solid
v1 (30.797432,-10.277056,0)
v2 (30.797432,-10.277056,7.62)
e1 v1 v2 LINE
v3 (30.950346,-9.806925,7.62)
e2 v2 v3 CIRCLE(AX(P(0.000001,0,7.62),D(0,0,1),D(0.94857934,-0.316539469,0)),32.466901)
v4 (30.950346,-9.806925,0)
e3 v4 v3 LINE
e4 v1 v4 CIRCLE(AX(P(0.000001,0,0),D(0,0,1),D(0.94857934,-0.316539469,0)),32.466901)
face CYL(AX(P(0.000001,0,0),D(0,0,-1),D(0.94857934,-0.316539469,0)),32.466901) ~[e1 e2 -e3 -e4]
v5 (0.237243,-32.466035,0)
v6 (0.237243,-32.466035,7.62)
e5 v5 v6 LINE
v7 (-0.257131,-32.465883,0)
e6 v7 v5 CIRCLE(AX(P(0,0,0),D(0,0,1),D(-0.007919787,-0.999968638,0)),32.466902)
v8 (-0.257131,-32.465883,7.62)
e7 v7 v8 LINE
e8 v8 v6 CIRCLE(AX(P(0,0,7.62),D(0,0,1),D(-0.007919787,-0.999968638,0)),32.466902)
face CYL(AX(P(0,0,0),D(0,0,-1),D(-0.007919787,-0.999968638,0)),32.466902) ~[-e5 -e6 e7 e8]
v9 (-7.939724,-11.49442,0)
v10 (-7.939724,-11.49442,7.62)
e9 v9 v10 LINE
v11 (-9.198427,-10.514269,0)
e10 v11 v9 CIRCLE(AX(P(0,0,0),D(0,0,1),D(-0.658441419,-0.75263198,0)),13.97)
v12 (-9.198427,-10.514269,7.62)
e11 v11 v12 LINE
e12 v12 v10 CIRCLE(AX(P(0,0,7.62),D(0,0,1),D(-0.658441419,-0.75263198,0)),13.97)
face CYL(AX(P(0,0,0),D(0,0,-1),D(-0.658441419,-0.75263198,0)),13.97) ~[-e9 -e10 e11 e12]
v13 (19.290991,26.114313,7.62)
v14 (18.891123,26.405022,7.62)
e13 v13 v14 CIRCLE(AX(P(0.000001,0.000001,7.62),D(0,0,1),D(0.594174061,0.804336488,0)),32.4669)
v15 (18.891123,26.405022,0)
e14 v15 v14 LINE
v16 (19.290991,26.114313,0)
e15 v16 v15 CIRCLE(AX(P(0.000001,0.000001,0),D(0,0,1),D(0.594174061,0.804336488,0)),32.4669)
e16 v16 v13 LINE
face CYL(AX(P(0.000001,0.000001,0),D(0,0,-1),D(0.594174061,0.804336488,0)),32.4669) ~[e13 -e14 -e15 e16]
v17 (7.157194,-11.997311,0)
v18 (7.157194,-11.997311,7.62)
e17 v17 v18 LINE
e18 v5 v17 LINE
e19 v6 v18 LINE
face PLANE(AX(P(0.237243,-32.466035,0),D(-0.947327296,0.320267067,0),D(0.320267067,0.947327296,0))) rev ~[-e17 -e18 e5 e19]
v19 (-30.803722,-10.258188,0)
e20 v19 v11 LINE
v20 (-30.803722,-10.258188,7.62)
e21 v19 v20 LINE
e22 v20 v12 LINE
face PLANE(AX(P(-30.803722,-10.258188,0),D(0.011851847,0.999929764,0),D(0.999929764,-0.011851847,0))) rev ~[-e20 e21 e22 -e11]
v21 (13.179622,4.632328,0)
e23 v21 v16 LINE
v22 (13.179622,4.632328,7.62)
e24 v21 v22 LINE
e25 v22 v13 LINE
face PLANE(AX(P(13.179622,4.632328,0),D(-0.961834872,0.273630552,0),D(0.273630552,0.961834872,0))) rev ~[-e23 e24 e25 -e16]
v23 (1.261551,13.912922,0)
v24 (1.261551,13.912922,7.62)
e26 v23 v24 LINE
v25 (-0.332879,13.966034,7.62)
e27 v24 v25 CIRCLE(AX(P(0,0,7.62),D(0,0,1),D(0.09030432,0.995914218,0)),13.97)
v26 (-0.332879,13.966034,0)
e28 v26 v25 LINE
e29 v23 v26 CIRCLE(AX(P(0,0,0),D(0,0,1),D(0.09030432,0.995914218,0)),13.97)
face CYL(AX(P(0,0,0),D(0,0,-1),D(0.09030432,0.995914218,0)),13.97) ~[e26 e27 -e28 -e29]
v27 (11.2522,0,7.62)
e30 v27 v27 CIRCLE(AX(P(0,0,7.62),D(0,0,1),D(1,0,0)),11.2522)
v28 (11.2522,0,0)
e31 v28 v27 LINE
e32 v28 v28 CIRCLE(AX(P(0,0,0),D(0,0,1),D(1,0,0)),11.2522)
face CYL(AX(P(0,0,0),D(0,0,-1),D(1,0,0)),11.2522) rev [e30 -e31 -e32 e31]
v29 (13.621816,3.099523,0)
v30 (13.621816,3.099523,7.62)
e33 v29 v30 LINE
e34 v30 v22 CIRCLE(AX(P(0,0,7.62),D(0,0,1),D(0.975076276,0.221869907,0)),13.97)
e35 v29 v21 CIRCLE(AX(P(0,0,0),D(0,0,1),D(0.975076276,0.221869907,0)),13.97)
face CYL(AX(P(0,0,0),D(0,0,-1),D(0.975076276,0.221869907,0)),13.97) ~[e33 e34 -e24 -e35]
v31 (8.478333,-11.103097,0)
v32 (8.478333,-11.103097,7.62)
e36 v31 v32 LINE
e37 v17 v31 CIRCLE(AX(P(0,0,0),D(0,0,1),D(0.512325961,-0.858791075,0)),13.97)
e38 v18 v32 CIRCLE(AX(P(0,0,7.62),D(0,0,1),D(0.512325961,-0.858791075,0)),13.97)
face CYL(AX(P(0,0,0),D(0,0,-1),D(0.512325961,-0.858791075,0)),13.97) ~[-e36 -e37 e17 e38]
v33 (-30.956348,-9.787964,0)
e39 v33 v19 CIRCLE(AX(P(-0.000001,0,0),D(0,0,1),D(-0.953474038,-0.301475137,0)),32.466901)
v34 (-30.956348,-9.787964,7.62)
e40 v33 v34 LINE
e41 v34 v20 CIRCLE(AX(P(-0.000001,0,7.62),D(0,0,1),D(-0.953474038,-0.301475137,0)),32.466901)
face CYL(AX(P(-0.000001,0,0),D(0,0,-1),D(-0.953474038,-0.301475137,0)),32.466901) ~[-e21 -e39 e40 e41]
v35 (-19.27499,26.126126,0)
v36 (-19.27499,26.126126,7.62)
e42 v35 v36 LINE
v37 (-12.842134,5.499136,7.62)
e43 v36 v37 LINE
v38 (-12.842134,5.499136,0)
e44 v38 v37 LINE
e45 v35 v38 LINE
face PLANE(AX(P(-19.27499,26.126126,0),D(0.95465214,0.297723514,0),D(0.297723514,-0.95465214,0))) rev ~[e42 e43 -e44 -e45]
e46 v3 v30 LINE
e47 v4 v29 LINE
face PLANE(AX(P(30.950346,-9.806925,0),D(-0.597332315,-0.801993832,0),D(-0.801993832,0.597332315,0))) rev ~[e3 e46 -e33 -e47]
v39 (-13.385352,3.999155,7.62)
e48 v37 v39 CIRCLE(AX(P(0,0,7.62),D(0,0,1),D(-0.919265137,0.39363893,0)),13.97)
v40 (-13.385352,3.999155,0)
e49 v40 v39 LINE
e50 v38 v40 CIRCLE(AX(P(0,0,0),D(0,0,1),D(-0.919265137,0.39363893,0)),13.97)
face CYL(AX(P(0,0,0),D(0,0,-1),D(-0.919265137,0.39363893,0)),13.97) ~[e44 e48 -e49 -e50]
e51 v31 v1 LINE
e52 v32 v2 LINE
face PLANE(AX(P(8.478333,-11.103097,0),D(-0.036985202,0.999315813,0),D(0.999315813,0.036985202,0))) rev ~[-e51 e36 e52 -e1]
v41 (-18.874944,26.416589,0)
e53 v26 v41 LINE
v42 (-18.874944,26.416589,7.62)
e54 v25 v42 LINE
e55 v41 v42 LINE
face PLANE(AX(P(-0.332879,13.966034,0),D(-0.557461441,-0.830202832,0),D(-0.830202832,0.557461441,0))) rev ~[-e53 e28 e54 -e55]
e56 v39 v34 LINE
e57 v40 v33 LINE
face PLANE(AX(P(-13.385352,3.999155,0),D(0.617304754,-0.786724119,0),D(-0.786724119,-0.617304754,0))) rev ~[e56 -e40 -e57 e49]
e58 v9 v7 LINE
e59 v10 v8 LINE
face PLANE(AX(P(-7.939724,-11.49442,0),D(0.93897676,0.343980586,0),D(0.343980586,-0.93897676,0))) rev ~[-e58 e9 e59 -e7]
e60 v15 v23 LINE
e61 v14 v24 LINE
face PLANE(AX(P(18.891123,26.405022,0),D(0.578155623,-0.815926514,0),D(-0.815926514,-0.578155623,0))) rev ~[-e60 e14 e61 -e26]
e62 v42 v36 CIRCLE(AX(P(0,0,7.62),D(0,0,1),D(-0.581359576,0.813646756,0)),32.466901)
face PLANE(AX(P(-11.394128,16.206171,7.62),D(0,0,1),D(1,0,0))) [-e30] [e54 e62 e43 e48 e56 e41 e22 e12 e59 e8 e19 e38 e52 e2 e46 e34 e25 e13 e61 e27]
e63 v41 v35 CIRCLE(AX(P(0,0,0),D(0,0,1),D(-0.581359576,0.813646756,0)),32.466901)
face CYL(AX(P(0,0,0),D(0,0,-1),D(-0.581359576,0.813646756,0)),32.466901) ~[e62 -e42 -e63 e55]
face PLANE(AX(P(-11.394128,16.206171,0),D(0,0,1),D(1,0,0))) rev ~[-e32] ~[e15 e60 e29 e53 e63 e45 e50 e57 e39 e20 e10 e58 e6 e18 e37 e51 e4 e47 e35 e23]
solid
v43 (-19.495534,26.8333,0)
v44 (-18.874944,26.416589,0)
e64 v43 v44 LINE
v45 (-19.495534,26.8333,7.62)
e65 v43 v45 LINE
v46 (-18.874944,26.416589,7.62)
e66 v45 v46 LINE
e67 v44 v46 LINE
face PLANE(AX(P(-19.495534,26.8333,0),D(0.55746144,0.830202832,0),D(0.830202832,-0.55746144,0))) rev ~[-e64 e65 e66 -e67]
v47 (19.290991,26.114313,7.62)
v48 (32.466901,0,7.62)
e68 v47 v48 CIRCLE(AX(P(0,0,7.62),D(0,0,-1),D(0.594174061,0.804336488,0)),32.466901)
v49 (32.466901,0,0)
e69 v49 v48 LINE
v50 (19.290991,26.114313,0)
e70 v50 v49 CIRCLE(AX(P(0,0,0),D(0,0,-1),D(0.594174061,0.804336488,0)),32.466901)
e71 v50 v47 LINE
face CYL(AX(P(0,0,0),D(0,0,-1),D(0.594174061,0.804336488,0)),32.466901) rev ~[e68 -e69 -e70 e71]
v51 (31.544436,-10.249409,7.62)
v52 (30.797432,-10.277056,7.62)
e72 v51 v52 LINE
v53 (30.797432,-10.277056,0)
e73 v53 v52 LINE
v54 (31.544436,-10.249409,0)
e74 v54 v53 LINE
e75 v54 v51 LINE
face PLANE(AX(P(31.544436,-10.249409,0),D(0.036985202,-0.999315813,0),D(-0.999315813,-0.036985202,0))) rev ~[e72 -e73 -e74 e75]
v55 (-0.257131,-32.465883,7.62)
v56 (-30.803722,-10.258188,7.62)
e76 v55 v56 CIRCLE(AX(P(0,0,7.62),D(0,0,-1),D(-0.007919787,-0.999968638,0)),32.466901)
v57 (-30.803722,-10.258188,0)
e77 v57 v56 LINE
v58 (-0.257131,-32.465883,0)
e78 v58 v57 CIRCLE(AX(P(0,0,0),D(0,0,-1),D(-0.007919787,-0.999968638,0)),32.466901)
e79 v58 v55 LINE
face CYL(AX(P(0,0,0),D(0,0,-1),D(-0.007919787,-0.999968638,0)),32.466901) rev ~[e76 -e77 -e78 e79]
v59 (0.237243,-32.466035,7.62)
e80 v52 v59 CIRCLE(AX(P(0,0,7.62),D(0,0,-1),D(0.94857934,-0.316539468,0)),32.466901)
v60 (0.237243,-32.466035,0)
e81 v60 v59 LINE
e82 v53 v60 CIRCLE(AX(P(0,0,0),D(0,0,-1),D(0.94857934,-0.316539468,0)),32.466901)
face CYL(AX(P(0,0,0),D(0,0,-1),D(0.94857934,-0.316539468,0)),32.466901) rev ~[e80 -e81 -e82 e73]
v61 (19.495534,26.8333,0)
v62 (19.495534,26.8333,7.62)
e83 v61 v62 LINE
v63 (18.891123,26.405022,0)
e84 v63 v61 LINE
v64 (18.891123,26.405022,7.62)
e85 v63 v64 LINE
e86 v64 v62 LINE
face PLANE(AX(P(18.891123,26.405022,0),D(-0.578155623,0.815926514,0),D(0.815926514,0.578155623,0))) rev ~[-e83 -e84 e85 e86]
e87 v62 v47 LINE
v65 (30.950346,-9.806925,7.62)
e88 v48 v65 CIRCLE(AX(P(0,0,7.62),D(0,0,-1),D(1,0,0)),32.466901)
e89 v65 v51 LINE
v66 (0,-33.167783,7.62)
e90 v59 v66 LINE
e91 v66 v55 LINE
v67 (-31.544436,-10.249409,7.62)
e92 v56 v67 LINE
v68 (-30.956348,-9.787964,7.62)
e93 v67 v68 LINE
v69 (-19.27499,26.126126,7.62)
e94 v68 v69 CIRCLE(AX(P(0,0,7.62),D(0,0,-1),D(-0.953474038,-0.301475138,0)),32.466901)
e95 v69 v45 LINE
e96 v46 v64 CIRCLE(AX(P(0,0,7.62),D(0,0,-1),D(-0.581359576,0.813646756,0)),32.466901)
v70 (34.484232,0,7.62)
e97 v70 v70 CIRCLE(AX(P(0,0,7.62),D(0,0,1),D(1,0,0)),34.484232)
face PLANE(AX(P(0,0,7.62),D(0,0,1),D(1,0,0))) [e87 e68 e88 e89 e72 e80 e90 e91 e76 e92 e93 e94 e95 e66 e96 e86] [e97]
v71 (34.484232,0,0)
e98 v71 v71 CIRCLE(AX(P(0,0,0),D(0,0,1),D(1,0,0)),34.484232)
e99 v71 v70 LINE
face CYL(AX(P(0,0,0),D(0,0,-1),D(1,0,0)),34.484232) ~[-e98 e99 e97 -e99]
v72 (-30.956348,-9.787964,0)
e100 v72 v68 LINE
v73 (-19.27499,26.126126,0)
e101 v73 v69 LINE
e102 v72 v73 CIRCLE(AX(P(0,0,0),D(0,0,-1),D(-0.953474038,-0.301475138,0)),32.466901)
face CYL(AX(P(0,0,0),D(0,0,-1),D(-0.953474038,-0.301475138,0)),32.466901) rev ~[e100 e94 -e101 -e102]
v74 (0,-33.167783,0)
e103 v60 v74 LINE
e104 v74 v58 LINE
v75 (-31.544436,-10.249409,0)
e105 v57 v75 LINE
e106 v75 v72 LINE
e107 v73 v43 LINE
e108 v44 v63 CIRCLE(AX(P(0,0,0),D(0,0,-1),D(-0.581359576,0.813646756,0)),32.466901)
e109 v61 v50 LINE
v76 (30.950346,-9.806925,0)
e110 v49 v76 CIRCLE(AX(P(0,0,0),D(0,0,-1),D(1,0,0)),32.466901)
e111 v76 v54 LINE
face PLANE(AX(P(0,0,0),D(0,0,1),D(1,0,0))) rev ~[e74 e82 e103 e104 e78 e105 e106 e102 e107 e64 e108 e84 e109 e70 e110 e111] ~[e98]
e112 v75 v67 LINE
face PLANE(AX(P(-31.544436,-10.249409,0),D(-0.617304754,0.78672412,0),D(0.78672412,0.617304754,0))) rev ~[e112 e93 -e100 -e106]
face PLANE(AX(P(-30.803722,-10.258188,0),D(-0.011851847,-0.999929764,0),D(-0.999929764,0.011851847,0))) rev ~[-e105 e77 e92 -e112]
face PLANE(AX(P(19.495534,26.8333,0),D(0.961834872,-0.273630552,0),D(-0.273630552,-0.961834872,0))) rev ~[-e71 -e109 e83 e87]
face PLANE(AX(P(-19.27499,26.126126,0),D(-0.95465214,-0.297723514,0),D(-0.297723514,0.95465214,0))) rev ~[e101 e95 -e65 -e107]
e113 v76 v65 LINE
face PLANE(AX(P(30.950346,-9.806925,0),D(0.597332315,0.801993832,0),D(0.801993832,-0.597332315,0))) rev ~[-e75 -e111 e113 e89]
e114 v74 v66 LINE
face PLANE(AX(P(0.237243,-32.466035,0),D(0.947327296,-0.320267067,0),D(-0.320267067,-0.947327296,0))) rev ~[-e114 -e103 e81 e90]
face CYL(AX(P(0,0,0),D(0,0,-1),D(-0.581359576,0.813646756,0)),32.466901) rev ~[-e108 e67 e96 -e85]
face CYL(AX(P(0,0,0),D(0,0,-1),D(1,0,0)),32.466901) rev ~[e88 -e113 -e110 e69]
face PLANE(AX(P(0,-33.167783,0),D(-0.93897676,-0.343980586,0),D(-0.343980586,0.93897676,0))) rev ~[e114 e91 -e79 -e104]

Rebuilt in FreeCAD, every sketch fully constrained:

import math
import FreeCAD as App
import Part
import Sketcher
from FreeCAD import Vector
Q = App.Units.Quantity

doc = App.newDocument("Part")
body = doc.addObject("PartDesign::Body", "Body")

sketch1 = body.newObject("Sketcher::SketchObject", "Sketch")
sketch1.AttachmentSupport = (doc.getObject("XY_Plane"), [""])
sketch1.MapMode = "FlatFace"
sketch1.addGeometry(Part.LineSegment(Vector(-0.332879, 13.966034, 0), Vector(-18.874944, 26.416589, 0)), False)
sketch1.addGeometry(Part.ArcOfCircle(Part.Circle(Vector(0, 0, 0), Vector(0, 0, 1), 32.466901), math.radians(125.546225), math.radians(126.418677)), False)
sketch1.addGeometry(Part.LineSegment(Vector(-19.27499, 26.126126, 0), Vector(-12.842134, 5.499136, 0)), False)
sketch1.addGeometry(Part.ArcOfCircle(Part.Circle(Vector(0, 0, 0), Vector(0, 0, 1), 13.97), math.radians(156.818885), math.radians(163.36538)), False)
sketch1.addGeometry(Part.LineSegment(Vector(-13.385352, 3.999155, 0), Vector(-30.956348, -9.787964, 0)), False)
sketch1.addGeometry(Part.ArcOfCircle(Part.Circle(Vector(-0.000001, 0, 0), Vector(0, 0, 1), 32.466901), math.radians(-162.453775), math.radians(-161.581323)), False)
sketch1.addGeometry(Part.LineSegment(Vector(-30.803722, -10.258188, 0), Vector(-9.198427, -10.514269, 0)), False)
sketch1.addGeometry(Part.ArcOfCircle(Part.Circle(Vector(0, 0, 0), Vector(0, 0, 1), 13.97), math.radians(-131.181115), math.radians(-124.63462)), False)
sketch1.addGeometry(Part.LineSegment(Vector(-7.939724, -11.49442, 0), Vector(-0.257131, -32.465883, 0)), False)
sketch1.addGeometry(Part.ArcOfCircle(Part.Circle(Vector(0, 0, 0), Vector(0, 0, 1), 32.466902), math.radians(-90.453775), math.radians(-89.581323)), False)
sketch1.addGeometry(Part.LineSegment(Vector(0.237243, -32.466035, 0), Vector(7.157194, -11.997311, 0)), False)
sketch1.addGeometry(Part.ArcOfCircle(Part.Circle(Vector(0, 0, 0), Vector(0, 0, 1), 13.97), math.radians(-59.181115), math.radians(-52.63462)), False)
sketch1.addGeometry(Part.LineSegment(Vector(8.478333, -11.103097, 0), Vector(30.797432, -10.277056, 0)), False)
sketch1.addGeometry(Part.ArcOfCircle(Part.Circle(Vector(0.000001, 0, 0), Vector(0, 0, 1), 32.466901), math.radians(-18.453775), math.radians(-17.581323)), False)
sketch1.addGeometry(Part.LineSegment(Vector(30.950346, -9.806925, 0), Vector(13.621816, 3.099523, 0)), False)
sketch1.addGeometry(Part.ArcOfCircle(Part.Circle(Vector(0, 0, 0), Vector(0, 0, 1), 13.97), math.radians(12.818885), math.radians(19.36538)), False)
sketch1.addGeometry(Part.LineSegment(Vector(13.179622, 4.632328, 0), Vector(19.290991, 26.114313, 0)), False)
sketch1.addGeometry(Part.ArcOfCircle(Part.Circle(Vector(0.000001, 0.000001, 0), Vector(0, 0, 1), 32.4669), math.radians(53.546225), math.radians(54.418677)), False)
sketch1.addGeometry(Part.LineSegment(Vector(18.891123, 26.405022, 0), Vector(1.261551, 13.912922, 0)), False)
sketch1.addGeometry(Part.ArcOfCircle(Part.Circle(Vector(0, 0, 0), Vector(0, 0, 1), 13.97), math.radians(84.818885), math.radians(91.36538)), False)
sketch1.addGeometry(Part.Circle(Vector(0, 0, 0), Vector(0, 0, 1), 11.2522), False)
sketch1.addConstraint(Sketcher.Constraint("Coincident", 0, 2, 1, 1))
sketch1.addConstraint(Sketcher.Constraint("Coincident", 1, 2, 2, 1))
sketch1.addConstraint(Sketcher.Constraint("Coincident", 2, 2, 3, 1))
sketch1.addConstraint(Sketcher.Constraint("Coincident", 3, 2, 4, 1))
sketch1.addConstraint(Sketcher.Constraint("Coincident", 4, 2, 5, 1))
sketch1.addConstraint(Sketcher.Constraint("Coincident", 5, 2, 6, 1))
sketch1.addConstraint(Sketcher.Constraint("Coincident", 6, 2, 7, 1))
sketch1.addConstraint(Sketcher.Constraint("Coincident", 7, 2, 8, 1))
sketch1.addConstraint(Sketcher.Constraint("Coincident", 8, 2, 9, 1))
sketch1.addConstraint(Sketcher.Constraint("Coincident", 9, 2, 10, 1))
sketch1.addConstraint(Sketcher.Constraint("Coincident", 10, 2, 11, 1))
sketch1.addConstraint(Sketcher.Constraint("Coincident", 11, 2, 12, 1))
sketch1.addConstraint(Sketcher.Constraint("Coincident", 12, 2, 13, 1))
sketch1.addConstraint(Sketcher.Constraint("Coincident", 13, 2, 14, 1))
sketch1.addConstraint(Sketcher.Constraint("Coincident", 14, 2, 15, 1))
sketch1.addConstraint(Sketcher.Constraint("Coincident", 15, 2, 16, 1))
sketch1.addConstraint(Sketcher.Constraint("Coincident", 16, 2, 17, 1))
sketch1.addConstraint(Sketcher.Constraint("Coincident", 17, 2, 18, 1))
sketch1.addConstraint(Sketcher.Constraint("Coincident", 18, 2, 19, 1))
sketch1.addConstraint(Sketcher.Constraint("Coincident", 19, 2, 0, 1))
sketch1.addConstraint(Sketcher.Constraint("Coincident", 1, 3, -1, 1))
sketch1.addConstraint(Sketcher.Constraint("Coincident", 3, 3, -1, 1))
sketch1.addConstraint(Sketcher.Constraint("Coincident", 5, 3, -1, 1))
sketch1.addConstraint(Sketcher.Constraint("Coincident", 7, 3, -1, 1))
sketch1.addConstraint(Sketcher.Constraint("Coincident", 9, 3, -1, 1))
sketch1.addConstraint(Sketcher.Constraint("Coincident", 11, 3, -1, 1))
sketch1.addConstraint(Sketcher.Constraint("Coincident", 13, 3, -1, 1))
sketch1.addConstraint(Sketcher.Constraint("Coincident", 15, 3, -1, 1))
sketch1.addConstraint(Sketcher.Constraint("Coincident", 17, 3, -1, 1))
sketch1.addConstraint(Sketcher.Constraint("Coincident", 19, 3, -1, 1))
sketch1.addConstraint(Sketcher.Constraint("Coincident", 20, 3, -1, 1))
sketch1.addConstraint(Sketcher.Constraint("Equal", 1, 5))
sketch1.addConstraint(Sketcher.Constraint("Equal", 3, 7))
sketch1.addConstraint(Sketcher.Constraint("Equal", 5, 9))
sketch1.addConstraint(Sketcher.Constraint("Equal", 7, 11))
sketch1.addConstraint(Sketcher.Constraint("Equal", 9, 13))
sketch1.addConstraint(Sketcher.Constraint("Equal", 11, 15))
sketch1.addConstraint(Sketcher.Constraint("Equal", 13, 17))
sketch1.addConstraint(Sketcher.Constraint("Equal", 15, 19))
sketch1.addConstraint(Sketcher.Constraint("Equal", 0, 4))
sketch1.addConstraint(Sketcher.Constraint("Equal", 2, 6))
sketch1.addConstraint(Sketcher.Constraint("Equal", 4, 8))
sketch1.addConstraint(Sketcher.Constraint("Equal", 6, 10))
sketch1.addConstraint(Sketcher.Constraint("Equal", 8, 12))
sketch1.addConstraint(Sketcher.Constraint("Equal", 10, 14))
sketch1.addConstraint(Sketcher.Constraint("Equal", 12, 16))
sketch1.addConstraint(Sketcher.Constraint("Equal", 14, 18))
sketch1.addConstraint(Sketcher.Constraint("Radius", 3, Q("0.55 in")))
sketch1.addConstraint(Sketcher.Constraint("Diameter", 20, Q("0.886 in")))
sketch1.addConstraint(Sketcher.Constraint("Radius", 1, 32.466901))
sketch1.addConstraint(Sketcher.Constraint("DistanceY", 4, 2, 3, 2, Q("0.5428 in")))
sketch1.addConstraint(Sketcher.Constraint("DistanceY", 4, 2, 2, 2, 15.287099))
sketch1.addConstraint(Sketcher.Constraint("DistanceX", 11, 2, 12, 2, 22.319099))
sketch1.addConstraint(Sketcher.Constraint("DistanceX", 15, 2, 17, 2, 5.711501))
sketch1.addConstraint(Sketcher.Constraint("DistanceY", 14, 2, 17, 2, 23.305499))
sketch1.addConstraint(Sketcher.Constraint("Distance", 0, 22.33438))
sketch1.addConstraint(Sketcher.Constraint("DistanceY", -1, 1, 0, 2, 26.416589))
sketch1.addConstraint(Sketcher.Constraint("DistanceX", 1, 2, -1, 1, 19.27499))
sketch1.addConstraint(Sketcher.Constraint("DistanceX", 5, 2, -1, 1, 30.803722))
sketch1.addConstraint(Sketcher.Constraint("DistanceY", 7, 2, -1, 1, 11.49442))
sketch1.addConstraint(Sketcher.Constraint("DistanceY", 10, 2, -1, 1, 11.997311))
sketch1.addConstraint(Sketcher.Constraint("DistanceX", -1, 1, 15, 2, 13.179622))
pad1 = body.newObject("PartDesign::Pad", "Pad")
pad1.Profile = sketch1
pad1.Length = Q("0.3 in")
body2 = doc.addObject("PartDesign::Body", "Body001")

sketch2 = body2.newObject("Sketcher::SketchObject", "Sketch001")
sketch2.AttachmentSupport = (doc.getObject("XY_Plane001"), [""])
sketch2.MapMode = "FlatFace"
sketch2.addGeometry(Part.Circle(Vector(0, 0, 0), Vector(0, 0, 1), 34.484232), False)
sketch2.addGeometry(Part.ArcOfCircle(Part.Circle(Vector(0, 0, 0), Vector(0, 0, 1), 32.466901), math.radians(0), math.radians(53.546225)), False)
sketch2.addGeometry(Part.ArcOfCircle(Part.Circle(Vector(0, 0, 0), Vector(0, 0, 1), 32.466901), math.radians(-17.581323), math.radians(0)), False)
sketch2.addGeometry(Part.LineSegment(Vector(30.950346, -9.806925, 0), Vector(31.544436, -10.249409, 0)), False)
sketch2.addGeometry(Part.LineSegment(Vector(31.544436, -10.249409, 0), Vector(30.797432, -10.277056, 0)), False)
sketch2.addGeometry(Part.ArcOfCircle(Part.Circle(Vector(0, 0, 0), Vector(0, 0, 1), 32.466901), math.radians(-89.581323), math.radians(-18.453775)), False)
sketch2.addGeometry(Part.LineSegment(Vector(0.237243, -32.466035, 0), Vector(0, -33.167783, 0)), False)
sketch2.addGeometry(Part.LineSegment(Vector(0, -33.167783, 0), Vector(-0.257131, -32.465883, 0)), False)
sketch2.addGeometry(Part.ArcOfCircle(Part.Circle(Vector(0, 0, 0), Vector(0, 0, 1), 32.466901), math.radians(-161.581323), math.radians(-90.453775)), False)
sketch2.addGeometry(Part.LineSegment(Vector(-30.803722, -10.258188, 0), Vector(-31.544436, -10.249409, 0)), False)
sketch2.addGeometry(Part.LineSegment(Vector(-31.544436, -10.249409, 0), Vector(-30.956348, -9.787964, 0)), False)
sketch2.addGeometry(Part.ArcOfCircle(Part.Circle(Vector(0, 0, 0), Vector(0, 0, 1), 32.466901), math.radians(126.418677), math.radians(197.546225)), False)
sketch2.addGeometry(Part.LineSegment(Vector(-19.27499, 26.126126, 0), Vector(-19.495534, 26.8333, 0)), False)
sketch2.addGeometry(Part.LineSegment(Vector(-19.495534, 26.8333, 0), Vector(-18.874944, 26.416589, 0)), False)
sketch2.addGeometry(Part.ArcOfCircle(Part.Circle(Vector(0, 0, 0), Vector(0, 0, 1), 32.466901), math.radians(54.418677), math.radians(125.546225)), False)
sketch2.addGeometry(Part.LineSegment(Vector(18.891123, 26.405022, 0), Vector(19.495534, 26.8333, 0)), False)
sketch2.addGeometry(Part.LineSegment(Vector(19.495534, 26.8333, 0), Vector(19.290991, 26.114313, 0)), False)
sketch2.addConstraint(Sketcher.Constraint("Tangent", 1, 1, 2, 2))
sketch2.addConstraint(Sketcher.Constraint("Coincident", 2, 1, 3, 1))
sketch2.addConstraint(Sketcher.Constraint("Coincident", 3, 2, 4, 1))
sketch2.addConstraint(Sketcher.Constraint("Coincident", 4, 2, 5, 2))
sketch2.addConstraint(Sketcher.Constraint("Coincident", 5, 1, 6, 1))
sketch2.addConstraint(Sketcher.Constraint("Coincident", 6, 2, 7, 1))
sketch2.addConstraint(Sketcher.Constraint("Coincident", 7, 2, 8, 2))
sketch2.addConstraint(Sketcher.Constraint("Coincident", 8, 1, 9, 1))
sketch2.addConstraint(Sketcher.Constraint("Coincident", 9, 2, 10, 1))
sketch2.addConstraint(Sketcher.Constraint("Coincident", 10, 2, 11, 2))
sketch2.addConstraint(Sketcher.Constraint("Coincident", 11, 1, 12, 1))
sketch2.addConstraint(Sketcher.Constraint("Coincident", 12, 2, 13, 1))
sketch2.addConstraint(Sketcher.Constraint("Coincident", 13, 2, 14, 2))
sketch2.addConstraint(Sketcher.Constraint("Coincident", 14, 1, 15, 1))
sketch2.addConstraint(Sketcher.Constraint("Coincident", 15, 2, 16, 1))
sketch2.addConstraint(Sketcher.Constraint("Coincident", 16, 2, 1, 2))
sketch2.addConstraint(Sketcher.Constraint("Coincident", 0, 3, -1, 1))
sketch2.addConstraint(Sketcher.Constraint("Coincident", 1, 3, -1, 1))
sketch2.addConstraint(Sketcher.Constraint("Coincident", 5, 3, -1, 1))
sketch2.addConstraint(Sketcher.Constraint("Coincident", 8, 3, -1, 1))
sketch2.addConstraint(Sketcher.Constraint("Coincident", 11, 3, -1, 1))
sketch2.addConstraint(Sketcher.Constraint("Coincident", 14, 3, -1, 1))
sketch2.addConstraint(Sketcher.Constraint("Equal", 1, 2))
sketch2.addConstraint(Sketcher.Constraint("Equal", 2, 5))
sketch2.addConstraint(Sketcher.Constraint("Equal", 5, 8))
sketch2.addConstraint(Sketcher.Constraint("Equal", 8, 11))
sketch2.addConstraint(Sketcher.Constraint("Equal", 11, 14))
sketch2.addConstraint(Sketcher.Constraint("Symmetric", 3, 2, 9, 2, -2))
sketch2.addConstraint(Sketcher.Constraint("Symmetric", 12, 2, 15, 2, -2))
sketch2.addConstraint(Sketcher.Constraint("PointOnObject", 1, 1, -1))
sketch2.addConstraint(Sketcher.Constraint("PointOnObject", 6, 2, -2))
sketch2.addConstraint(Sketcher.Constraint("Equal", 3, 6))
sketch2.addConstraint(Sketcher.Constraint("Equal", 4, 7))
sketch2.addConstraint(Sketcher.Constraint("Equal", 6, 9))
sketch2.addConstraint(Sketcher.Constraint("Equal", 7, 10))
sketch2.addConstraint(Sketcher.Constraint("Equal", 9, 12))
sketch2.addConstraint(Sketcher.Constraint("Equal", 10, 13))
sketch2.addConstraint(Sketcher.Constraint("Equal", 12, 15))
sketch2.addConstraint(Sketcher.Constraint("Equal", 13, 16))
sketch2.addConstraint(Sketcher.Constraint("Radius", 1, 32.466901))
sketch2.addConstraint(Sketcher.Constraint("Diameter", 0, 68.968463))
sketch2.addConstraint(Sketcher.Constraint("DistanceY", -1, 1, 12, 2, 26.8333))
sketch2.addConstraint(Sketcher.Constraint("DistanceY", 6, 2, 7, 2, 0.7019))
sketch2.addConstraint(Sketcher.Constraint("DistanceY", 3, 2, -1, 1, 10.249409))
sketch2.addConstraint(Sketcher.Constraint("DistanceX", -1, 1, 4, 2, 30.797432))
sketch2.addConstraint(Sketcher.Constraint("DistanceX", 7, 2, -1, 1, 0.257131))
sketch2.addConstraint(Sketcher.Constraint("DistanceX", 8, 1, -1, 1, 30.803722))
sketch2.addConstraint(Sketcher.Constraint("DistanceX", 11, 1, -1, 1, 19.27499))
pad2 = body2.newObject("PartDesign::Pad", "Pad001")
pad2.Profile = sketch2
pad2.Length = Q("0.3 in")

doc.recompute()
